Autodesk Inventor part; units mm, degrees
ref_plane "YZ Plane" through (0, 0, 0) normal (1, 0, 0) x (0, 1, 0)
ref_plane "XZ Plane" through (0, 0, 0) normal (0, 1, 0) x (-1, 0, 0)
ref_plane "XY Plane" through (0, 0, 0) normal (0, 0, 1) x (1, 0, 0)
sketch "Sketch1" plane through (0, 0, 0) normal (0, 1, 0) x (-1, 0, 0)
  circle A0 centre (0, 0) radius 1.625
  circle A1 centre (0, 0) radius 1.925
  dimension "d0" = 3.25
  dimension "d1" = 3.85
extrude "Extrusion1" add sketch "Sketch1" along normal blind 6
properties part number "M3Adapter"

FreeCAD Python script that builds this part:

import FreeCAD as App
import Part
import Sketcher

doc = App.newDocument("Part")
body = doc.addObject("PartDesign::Body", "Body")

sketch1 = body.newObject("Sketcher::SketchObject", "Sketch")
sketch1.AttachmentSupport = (doc.getObject("XZ_Plane"), [""])
sketch1.MapMode = "FlatFace"
sketch1.addGeometry([
    Part.Circle(App.Vector(0, 0, 0), App.Vector(0, 0, 1), 1.9),
    Part.Circle(App.Vector(0, 0, 0), App.Vector(0, 0, 1), 1.6),
], False)
sketch1.addConstraint([
    Sketcher.Constraint("Coincident", 0, 3, -1, 1),
    Sketcher.Constraint("Coincident", 1, 3, -1, 1),
    Sketcher.Constraint("Diameter", 0, 3.85),
    Sketcher.Constraint("Diameter", 1, 3.25),
])
pad1 = body.newObject("PartDesign::Pad", "Pad")
pad1.Profile = sketch1
pad1.Length = 6
pad1.Reversed = True

doc.recompute()
